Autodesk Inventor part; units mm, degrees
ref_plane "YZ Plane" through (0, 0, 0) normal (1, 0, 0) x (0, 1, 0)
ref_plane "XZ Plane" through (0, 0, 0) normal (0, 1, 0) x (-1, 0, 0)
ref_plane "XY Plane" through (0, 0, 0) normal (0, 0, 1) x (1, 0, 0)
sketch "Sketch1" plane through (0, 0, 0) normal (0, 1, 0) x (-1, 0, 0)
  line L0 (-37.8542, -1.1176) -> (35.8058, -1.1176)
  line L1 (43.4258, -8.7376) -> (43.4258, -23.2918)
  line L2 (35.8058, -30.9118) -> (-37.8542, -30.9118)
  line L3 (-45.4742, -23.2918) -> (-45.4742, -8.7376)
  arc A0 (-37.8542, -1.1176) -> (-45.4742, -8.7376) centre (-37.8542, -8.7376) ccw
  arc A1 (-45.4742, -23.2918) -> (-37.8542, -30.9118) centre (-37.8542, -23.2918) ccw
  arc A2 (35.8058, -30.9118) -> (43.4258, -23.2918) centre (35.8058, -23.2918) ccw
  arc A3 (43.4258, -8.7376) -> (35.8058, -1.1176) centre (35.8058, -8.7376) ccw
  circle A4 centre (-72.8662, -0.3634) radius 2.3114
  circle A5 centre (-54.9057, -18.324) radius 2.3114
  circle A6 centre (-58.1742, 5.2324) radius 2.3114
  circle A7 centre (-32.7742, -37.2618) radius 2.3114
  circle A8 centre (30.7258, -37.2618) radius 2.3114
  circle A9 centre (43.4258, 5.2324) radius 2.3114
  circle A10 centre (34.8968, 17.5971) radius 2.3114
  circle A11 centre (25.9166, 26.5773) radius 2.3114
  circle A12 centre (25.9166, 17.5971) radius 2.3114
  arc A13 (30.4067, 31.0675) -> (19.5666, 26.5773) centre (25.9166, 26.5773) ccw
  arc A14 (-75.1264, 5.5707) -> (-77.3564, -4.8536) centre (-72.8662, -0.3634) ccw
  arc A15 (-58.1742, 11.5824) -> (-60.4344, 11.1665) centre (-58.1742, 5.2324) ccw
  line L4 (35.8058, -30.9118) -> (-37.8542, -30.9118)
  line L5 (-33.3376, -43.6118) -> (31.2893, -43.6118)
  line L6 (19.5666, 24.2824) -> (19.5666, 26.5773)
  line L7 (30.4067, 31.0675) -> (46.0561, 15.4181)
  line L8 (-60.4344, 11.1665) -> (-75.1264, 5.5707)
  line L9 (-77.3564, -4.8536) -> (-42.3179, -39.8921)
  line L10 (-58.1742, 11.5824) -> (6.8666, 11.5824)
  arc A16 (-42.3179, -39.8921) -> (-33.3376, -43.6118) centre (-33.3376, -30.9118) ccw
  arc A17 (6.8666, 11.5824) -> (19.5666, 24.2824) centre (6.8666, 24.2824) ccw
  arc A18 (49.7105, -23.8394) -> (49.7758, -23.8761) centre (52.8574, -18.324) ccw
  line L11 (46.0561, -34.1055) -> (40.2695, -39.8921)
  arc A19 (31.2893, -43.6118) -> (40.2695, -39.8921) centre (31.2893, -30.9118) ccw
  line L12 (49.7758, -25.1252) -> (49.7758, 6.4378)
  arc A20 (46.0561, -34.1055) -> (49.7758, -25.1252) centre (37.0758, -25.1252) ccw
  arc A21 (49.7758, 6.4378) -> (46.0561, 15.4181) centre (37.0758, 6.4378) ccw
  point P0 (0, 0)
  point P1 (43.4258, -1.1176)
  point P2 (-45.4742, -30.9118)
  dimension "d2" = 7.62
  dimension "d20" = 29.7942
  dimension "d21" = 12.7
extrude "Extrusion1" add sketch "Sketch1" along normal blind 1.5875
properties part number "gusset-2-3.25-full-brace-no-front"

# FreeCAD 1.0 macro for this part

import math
import FreeCAD as App
import Part
import Sketcher
from FreeCAD import Vector
Q = App.Units.Quantity

doc = App.newDocument("Part")
params = doc.addObject("Spreadsheet::Sheet", "Params")
for row, (alias, value) in enumerate([
    ("sketch1_radius", "0.5 in"),
    ("sketch1_radius2", "0.3 in"),
    ("sketch1_radius3", "0.25 in"),
    ("sketch1_diameter", "0.182 in"),
    ("sketch1_width", "2.9 in"),
    ("pad1_length", "0.0625 in"),
], start=1):
    params.set(f"A{row}", alias)
    params.set(f"B{row}", "=" + value)
    params.setAlias(f"B{row}", alias)

body = doc.addObject("PartDesign::Body", "Body")

# Sketch on XZ plane
sketch1 = body.newObject("Sketcher::SketchObject", "Sketch")
sketch1.AttachmentSupport = (doc.getObject("XZ_Plane"), [""])
sketch1.MapMode = "FlatFace"
sketch1.addGeometry([
    Part.LineSegment(Vector(-46.1, 15.4, 0), Vector(-30.4, 31.1, 0)),  # 0
    Part.ArcOfCircle(Part.Circle(Vector(-25.9, 26.6, 0), Vector(0, 0, 1), 6.4), math.radians(0), math.radians(135)),  # 1
    Part.LineSegment(Vector(-19.6, 26.6, 0), Vector(-19.6, 24.3, 0)),  # 2
    Part.ArcOfCircle(Part.Circle(Vector(-6.9, 24.3, 0), Vector(0, 0, 1), 12.7), math.radians(180), math.radians(270)),  # 3
    Part.LineSegment(Vector(-6.9, 11.6, 0), Vector(58.2, 11.6, 0)),  # 4
    Part.ArcOfCircle(Part.Circle(Vector(58.2, 5.2, 0), Vector(0, 0, 1), 6.3), math.radians(69), math.radians(90)),  # 5
    Part.LineSegment(Vector(60.4, 11.2, 0), Vector(75.1, 5.6, 0)),  # 6
    Part.ArcOfCircle(Part.Circle(Vector(72.9, -0.4, 0), Vector(0, 0, 1), 6.3), math.radians(-45), math.radians(69)),  # 7
    Part.LineSegment(Vector(77.4, -4.9, 0), Vector(42.3, -39.9, 0)),  # 8
    Part.ArcOfCircle(Part.Circle(Vector(33.3, -30.9, 0), Vector(0, 0, 1), 12.7), math.radians(-90), math.radians(-45)),  # 9
    Part.LineSegment(Vector(33.3, -43.6, 0), Vector(-31.3, -43.6, 0)),  # 10
    Part.ArcOfCircle(Part.Circle(Vector(-31.3, -30.9, 0), Vector(0, 0, 1), 12.7), math.radians(-135), math.radians(-90)),  # 11
    Part.LineSegment(Vector(-40.3, -39.9, 0), Vector(-46.1, -34.1, 0)),  # 12
    Part.ArcOfCircle(Part.Circle(Vector(-37.1, -25.1, 0), Vector(0, 0, 1), 12.7), math.radians(180), math.radians(225)),  # 13
    Part.LineSegment(Vector(-49.8, -25.1, 0), Vector(-49.8, 6.4, 0)),  # 14
    Part.ArcOfCircle(Part.Circle(Vector(-37.1, 6.4, 0), Vector(0, 0, 1), 12.7), math.radians(135), math.radians(180)),  # 15
    Part.Circle(Vector(32.8, -37.3, 0), Vector(0, 0, 1), 2.3),  # 16
    Part.Circle(Vector(54.9, -18.3, 0), Vector(0, 0, 1), 2.3),  # 17
    Part.Circle(Vector(-30.7, -37.3, 0), Vector(0, 0, 1), 2.3),  # 18
    Part.ArcOfCircle(Part.Circle(Vector(37.9, -8.7, 0), Vector(0, 0, 1), 7.6), math.radians(0), math.radians(90)),  # 19
    Part.LineSegment(Vector(37.9, -1.1, 0), Vector(-35.8, -1.1, 0)),  # 20
    Part.ArcOfCircle(Part.Circle(Vector(-35.8, -8.7, 0), Vector(0, 0, 1), 7.6), math.radians(90), math.radians(180)),  # 21
    Part.LineSegment(Vector(-43.4, -8.7, 0), Vector(-43.4, -23.3, 0)),  # 22
    Part.ArcOfCircle(Part.Circle(Vector(-35.8, -23.3, 0), Vector(0, 0, 1), 7.6), math.radians(180), math.radians(270)),  # 23
    Part.LineSegment(Vector(-35.8, -30.9, 0), Vector(37.9, -30.9, 0)),  # 24
    Part.ArcOfCircle(Part.Circle(Vector(37.9, -23.3, 0), Vector(0, 0, 1), 7.6), math.radians(-90), math.radians(0)),  # 25
    Part.LineSegment(Vector(45.5, -23.3, 0), Vector(45.5, -8.7, 0)),  # 26
    Part.Circle(Vector(72.9, -0.4, 0), Vector(0, 0, 1), 2.3),  # 27
    Part.Circle(Vector(58.2, 5.2, 0), Vector(0, 0, 1), 2.3),  # 28
    Part.Circle(Vector(-43.4, 5.2, 0), Vector(0, 0, 1), 2.3),  # 29
    Part.Circle(Vector(-25.9, 17.6, 0), Vector(0, 0, 1), 2.3),  # 30
    Part.Circle(Vector(-34.9, 17.6, 0), Vector(0, 0, 1), 2.3),  # 31
    Part.Circle(Vector(-25.9, 26.6, 0), Vector(0, 0, 1), 2.3),  # 32
], False)
sketch1.addConstraint([
    Sketcher.Constraint("Tangent", 0, 2, 1, 2),
    Sketcher.Constraint("Tangent", 1, 1, 2, 1),
    Sketcher.Constraint("Tangent", 2, 2, 3, 1),
    Sketcher.Constraint("Tangent", 3, 2, 4, 1),
    Sketcher.Constraint("Tangent", 4, 2, 5, 2),
    Sketcher.Constraint("Tangent", 5, 1, 6, 1),
    Sketcher.Constraint("Tangent", 6, 2, 7, 2),
    Sketcher.Constraint("Tangent", 7, 1, 8, 1),
    Sketcher.Constraint("Tangent", 8, 2, 9, 2),
    Sketcher.Constraint("Tangent", 9, 1, 10, 1),
    Sketcher.Constraint("Tangent", 10, 2, 11, 2),
    Sketcher.Constraint("Tangent", 11, 1, 12, 1),
    Sketcher.Constraint("Tangent", 12, 2, 13, 2),
    Sketcher.Constraint("Tangent", 13, 1, 14, 1),
    Sketcher.Constraint("Tangent", 14, 2, 15, 2),
    Sketcher.Constraint("Tangent", 15, 1, 0, 1),
    Sketcher.Constraint("Tangent", 19, 2, 20, 1),
    Sketcher.Constraint("Tangent", 20, 2, 21, 1),
    Sketcher.Constraint("Tangent", 21, 2, 22, 1),
    Sketcher.Constraint("Tangent", 22, 2, 23, 1),
    Sketcher.Constraint("Tangent", 23, 2, 24, 1),
    Sketcher.Constraint("Tangent", 24, 2, 25, 1),
    Sketcher.Constraint("Tangent", 25, 2, 26, 1),
    Sketcher.Constraint("Tangent", 26, 2, 19, 1),
    Sketcher.Constraint("Vertical", 2),
    Sketcher.Constraint("Horizontal", 4),
    Sketcher.Constraint("Horizontal", 10),
    Sketcher.Constraint("Vertical", 14),
    Sketcher.Constraint("Horizontal", 20),
    Sketcher.Constraint("Vertical", 22),
    Sketcher.Constraint("Horizontal", 24),
    Sketcher.Constraint("Vertical", 26),
    Sketcher.Constraint("Coincident", 27, 3, 7, 3),
    Sketcher.Constraint("Coincident", 32, 3, 1, 3),
    Sketcher.Constraint("Equal", 1, 7),
    Sketcher.Constraint("Equal", 3, 9),
    Sketcher.Constraint("Equal", 9, 11),
    Sketcher.Constraint("Equal", 11, 13),
    Sketcher.Constraint("Equal", 13, 15),
    Sketcher.Constraint("Equal", 16, 17),
    Sketcher.Constraint("Equal", 17, 18),
    Sketcher.Constraint("Equal", 19, 21),
    Sketcher.Constraint("Equal", 21, 23),
    Sketcher.Constraint("Equal", 23, 25),
    Sketcher.Constraint("Equal", 18, 27),
    Sketcher.Constraint("Equal", 27, 28),
    Sketcher.Constraint("Equal", 28, 29),
    Sketcher.Constraint("Equal", 29, 30),
    Sketcher.Constraint("Equal", 30, 31),
    Sketcher.Constraint("Equal", 31, 32),
    Sketcher.Constraint("Parallel", 0, 8),
    Sketcher.Constraint("Perpendicular", 8, 12),
    Sketcher.Constraint("Horizontal", 16, 3, 18, 3),
    Sketcher.Constraint("Horizontal", 28, 3, 29, 3),
    Sketcher.Constraint("Horizontal", 30, 3, 31, 3),
    Sketcher.Constraint("Horizontal", 8, 2, 11, 1),
    Sketcher.Constraint("Horizontal", 11, 3, 23, 2),
    Sketcher.Constraint("Vertical", 5, 3, 28, 3),
    Sketcher.Constraint("Vertical", 1, 3, 30, 3),
    Sketcher.Constraint("Vertical", 29, 3, 21, 2),
    Sketcher.Constraint("Radius", 3, Q("0.5 in")),
    Sketcher.Constraint("Radius", 19, Q("0.3 in")),
    Sketcher.Constraint("Radius", 1, Q("0.25 in")),
    Sketcher.Constraint("DistanceY", 19, 2, 4, 2, Q("0.5 in")),
    Sketcher.Constraint("Diameter", 16, Q("0.182 in")),
    Sketcher.Constraint("DistanceX", 20, 2, 20, 1, Q("2.9 in")),
    Sketcher.Constraint("DistanceX", 16, 3, 5, 3, Q("1 in")),
    Sketcher.Constraint("DistanceX", 18, 3, 16, 3, Q("2.5 in")),
    Sketcher.Constraint("DistanceX", 19, 3, 5, 3, Q("0.8 in")),
    Sketcher.Constraint("DistanceY", 22, 2, 22, 1, Q("0.573 in")),
    Sketcher.Constraint("Angle", 6, Q("-20.8505 deg")),
    Sketcher.Constraint("Radius", 5, 6.349),
    Sketcher.Constraint("DistanceX", 13, 3, 5, 3, Q("3.75 in")),
    Sketcher.Constraint("DistanceY", 16, 3, 9, 3, Q("0.25 in")),
    Sketcher.Constraint("DistanceY", 19, 3, 28, 3, Q("0.55 in")),
    Sketcher.Constraint("DistanceY", -1, 1, 3, 3, Q("0.956 in")),
    Sketcher.Constraint("DistanceX", -1, 1, 9, 3, Q("1.3125 in")),
    Sketcher.Constraint("DistanceY", -1, 1, 15, 1, Q("0.607 in")),
    Sketcher.Constraint("DistanceX", 4, 1, 4, 2, 65.0408),
    Sketcher.Constraint("DistanceX", 10, 2, 10, 1, 64.627),
    Sketcher.Constraint("DistanceY", 14, 1, 14, 2, 31.563),
    Sketcher.Constraint("DistanceY", -1, 1, 30, 3, Q("0.6928 in")),
    Sketcher.Constraint("DistanceX", 31, 3, -1, 1, Q("1.3739 in")),
    Sketcher.Constraint("DistanceX", 17, 3, 7, 3, Q("0.7071 in")),
    Sketcher.Constraint("DistanceY", 17, 3, 7, 3, Q("0.7071 in")),
])
sketch1.setExpression("Constraints[60]", "Params.sketch1_radius")
sketch1.setExpression("Constraints[61]", "Params.sketch1_radius2")
sketch1.setExpression("Constraints[62]", "Params.sketch1_radius3")
sketch1.setExpression("Constraints[64]", "Params.sketch1_diameter")
sketch1.setExpression("Constraints[65]", "Params.sketch1_width")
pad1 = body.newObject("PartDesign::Pad", "Pad")
pad1.Profile = sketch1
pad1.setExpression("Length", "Params.pad1_length")
pad1.Reversed = True

doc.recompute()
